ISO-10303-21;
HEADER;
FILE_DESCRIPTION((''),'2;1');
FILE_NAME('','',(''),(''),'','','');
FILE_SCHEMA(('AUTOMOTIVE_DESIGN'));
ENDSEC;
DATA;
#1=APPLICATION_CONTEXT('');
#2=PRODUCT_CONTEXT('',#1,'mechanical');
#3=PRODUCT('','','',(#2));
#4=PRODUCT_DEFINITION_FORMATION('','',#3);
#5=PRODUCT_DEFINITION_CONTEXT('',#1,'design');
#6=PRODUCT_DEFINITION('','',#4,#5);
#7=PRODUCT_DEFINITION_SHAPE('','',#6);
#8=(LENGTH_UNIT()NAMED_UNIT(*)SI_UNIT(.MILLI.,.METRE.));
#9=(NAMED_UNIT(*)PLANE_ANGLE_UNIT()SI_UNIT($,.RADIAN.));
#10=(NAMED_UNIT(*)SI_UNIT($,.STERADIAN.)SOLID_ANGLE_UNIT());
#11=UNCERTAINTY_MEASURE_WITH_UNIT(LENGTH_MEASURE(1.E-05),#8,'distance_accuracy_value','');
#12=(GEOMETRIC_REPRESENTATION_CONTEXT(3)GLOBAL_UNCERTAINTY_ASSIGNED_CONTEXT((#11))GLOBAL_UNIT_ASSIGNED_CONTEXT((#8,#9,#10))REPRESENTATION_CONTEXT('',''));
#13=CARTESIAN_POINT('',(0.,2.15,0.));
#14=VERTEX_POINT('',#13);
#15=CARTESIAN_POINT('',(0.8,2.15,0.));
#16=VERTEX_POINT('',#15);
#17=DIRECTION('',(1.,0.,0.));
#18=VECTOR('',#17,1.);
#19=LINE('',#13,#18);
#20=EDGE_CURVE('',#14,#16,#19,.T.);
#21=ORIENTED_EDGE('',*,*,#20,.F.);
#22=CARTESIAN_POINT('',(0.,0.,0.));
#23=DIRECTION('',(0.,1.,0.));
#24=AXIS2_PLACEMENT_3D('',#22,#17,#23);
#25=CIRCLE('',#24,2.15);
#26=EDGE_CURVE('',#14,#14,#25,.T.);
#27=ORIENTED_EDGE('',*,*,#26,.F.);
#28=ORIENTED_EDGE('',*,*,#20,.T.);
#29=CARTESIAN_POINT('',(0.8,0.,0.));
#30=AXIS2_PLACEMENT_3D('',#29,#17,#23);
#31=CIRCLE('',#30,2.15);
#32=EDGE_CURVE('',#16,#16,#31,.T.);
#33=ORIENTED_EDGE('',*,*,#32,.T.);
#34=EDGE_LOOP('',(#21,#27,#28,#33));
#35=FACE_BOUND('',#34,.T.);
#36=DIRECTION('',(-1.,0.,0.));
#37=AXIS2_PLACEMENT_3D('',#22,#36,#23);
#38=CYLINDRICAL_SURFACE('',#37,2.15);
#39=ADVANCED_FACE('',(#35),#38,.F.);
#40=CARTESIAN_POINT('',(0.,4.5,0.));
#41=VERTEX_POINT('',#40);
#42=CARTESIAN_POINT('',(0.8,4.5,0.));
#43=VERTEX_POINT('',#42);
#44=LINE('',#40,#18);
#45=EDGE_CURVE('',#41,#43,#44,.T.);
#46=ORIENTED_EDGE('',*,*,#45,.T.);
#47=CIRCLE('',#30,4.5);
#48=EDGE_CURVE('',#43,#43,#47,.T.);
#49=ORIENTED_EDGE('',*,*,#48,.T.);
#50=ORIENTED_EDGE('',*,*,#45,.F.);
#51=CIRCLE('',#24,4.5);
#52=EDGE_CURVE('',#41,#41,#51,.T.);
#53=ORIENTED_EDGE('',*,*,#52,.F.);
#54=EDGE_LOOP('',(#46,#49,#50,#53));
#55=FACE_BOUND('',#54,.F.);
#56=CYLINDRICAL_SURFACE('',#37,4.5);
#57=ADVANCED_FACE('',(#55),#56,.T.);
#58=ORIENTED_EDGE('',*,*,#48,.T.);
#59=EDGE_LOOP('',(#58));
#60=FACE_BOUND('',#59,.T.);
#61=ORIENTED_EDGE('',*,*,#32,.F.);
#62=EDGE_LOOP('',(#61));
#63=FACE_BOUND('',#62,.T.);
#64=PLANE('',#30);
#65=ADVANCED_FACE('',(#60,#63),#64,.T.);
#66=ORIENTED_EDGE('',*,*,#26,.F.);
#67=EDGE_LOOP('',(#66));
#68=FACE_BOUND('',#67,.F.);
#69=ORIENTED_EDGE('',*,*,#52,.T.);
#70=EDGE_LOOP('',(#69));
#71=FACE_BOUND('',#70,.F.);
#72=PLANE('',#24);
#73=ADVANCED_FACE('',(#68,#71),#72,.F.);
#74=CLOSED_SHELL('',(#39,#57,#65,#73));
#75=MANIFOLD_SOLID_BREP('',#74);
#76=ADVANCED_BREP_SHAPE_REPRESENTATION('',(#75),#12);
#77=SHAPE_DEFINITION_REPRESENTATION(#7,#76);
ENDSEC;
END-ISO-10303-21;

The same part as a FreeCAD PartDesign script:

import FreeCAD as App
import Part
import Sketcher
from FreeCAD import Vector
Q = App.Units.Quantity

doc = App.newDocument("Part")
body = doc.addObject("PartDesign::Body", "Body")

# Sketch on YZ plane
sketch1 = body.newObject("Sketcher::SketchObject", "Sketch")
sketch1.AttachmentSupport = (doc.getObject("YZ_Plane"), [""])
sketch1.MapMode = "FlatFace"
sketch1.addGeometry([
    Part.Circle(Vector(0, 0, 0), Vector(0, 0, 1), 4.5),
    Part.Circle(Vector(0, 0, 0), Vector(0, 0, 1), 2.1),
], False)
sketch1.addConstraint([
    Sketcher.Constraint("Coincident", 0, 3, -1, 1),
    Sketcher.Constraint("Coincident", 1, 3, -1, 1),
    Sketcher.Constraint("Diameter", 0, Q("9 mm")),
    Sketcher.Constraint("Diameter", 1, Q("4.3 mm")),
])
pad1 = body.newObject("PartDesign::Pad", "Pad")
pad1.Profile = sketch1
pad1.Length = 0.8

doc.recompute()
